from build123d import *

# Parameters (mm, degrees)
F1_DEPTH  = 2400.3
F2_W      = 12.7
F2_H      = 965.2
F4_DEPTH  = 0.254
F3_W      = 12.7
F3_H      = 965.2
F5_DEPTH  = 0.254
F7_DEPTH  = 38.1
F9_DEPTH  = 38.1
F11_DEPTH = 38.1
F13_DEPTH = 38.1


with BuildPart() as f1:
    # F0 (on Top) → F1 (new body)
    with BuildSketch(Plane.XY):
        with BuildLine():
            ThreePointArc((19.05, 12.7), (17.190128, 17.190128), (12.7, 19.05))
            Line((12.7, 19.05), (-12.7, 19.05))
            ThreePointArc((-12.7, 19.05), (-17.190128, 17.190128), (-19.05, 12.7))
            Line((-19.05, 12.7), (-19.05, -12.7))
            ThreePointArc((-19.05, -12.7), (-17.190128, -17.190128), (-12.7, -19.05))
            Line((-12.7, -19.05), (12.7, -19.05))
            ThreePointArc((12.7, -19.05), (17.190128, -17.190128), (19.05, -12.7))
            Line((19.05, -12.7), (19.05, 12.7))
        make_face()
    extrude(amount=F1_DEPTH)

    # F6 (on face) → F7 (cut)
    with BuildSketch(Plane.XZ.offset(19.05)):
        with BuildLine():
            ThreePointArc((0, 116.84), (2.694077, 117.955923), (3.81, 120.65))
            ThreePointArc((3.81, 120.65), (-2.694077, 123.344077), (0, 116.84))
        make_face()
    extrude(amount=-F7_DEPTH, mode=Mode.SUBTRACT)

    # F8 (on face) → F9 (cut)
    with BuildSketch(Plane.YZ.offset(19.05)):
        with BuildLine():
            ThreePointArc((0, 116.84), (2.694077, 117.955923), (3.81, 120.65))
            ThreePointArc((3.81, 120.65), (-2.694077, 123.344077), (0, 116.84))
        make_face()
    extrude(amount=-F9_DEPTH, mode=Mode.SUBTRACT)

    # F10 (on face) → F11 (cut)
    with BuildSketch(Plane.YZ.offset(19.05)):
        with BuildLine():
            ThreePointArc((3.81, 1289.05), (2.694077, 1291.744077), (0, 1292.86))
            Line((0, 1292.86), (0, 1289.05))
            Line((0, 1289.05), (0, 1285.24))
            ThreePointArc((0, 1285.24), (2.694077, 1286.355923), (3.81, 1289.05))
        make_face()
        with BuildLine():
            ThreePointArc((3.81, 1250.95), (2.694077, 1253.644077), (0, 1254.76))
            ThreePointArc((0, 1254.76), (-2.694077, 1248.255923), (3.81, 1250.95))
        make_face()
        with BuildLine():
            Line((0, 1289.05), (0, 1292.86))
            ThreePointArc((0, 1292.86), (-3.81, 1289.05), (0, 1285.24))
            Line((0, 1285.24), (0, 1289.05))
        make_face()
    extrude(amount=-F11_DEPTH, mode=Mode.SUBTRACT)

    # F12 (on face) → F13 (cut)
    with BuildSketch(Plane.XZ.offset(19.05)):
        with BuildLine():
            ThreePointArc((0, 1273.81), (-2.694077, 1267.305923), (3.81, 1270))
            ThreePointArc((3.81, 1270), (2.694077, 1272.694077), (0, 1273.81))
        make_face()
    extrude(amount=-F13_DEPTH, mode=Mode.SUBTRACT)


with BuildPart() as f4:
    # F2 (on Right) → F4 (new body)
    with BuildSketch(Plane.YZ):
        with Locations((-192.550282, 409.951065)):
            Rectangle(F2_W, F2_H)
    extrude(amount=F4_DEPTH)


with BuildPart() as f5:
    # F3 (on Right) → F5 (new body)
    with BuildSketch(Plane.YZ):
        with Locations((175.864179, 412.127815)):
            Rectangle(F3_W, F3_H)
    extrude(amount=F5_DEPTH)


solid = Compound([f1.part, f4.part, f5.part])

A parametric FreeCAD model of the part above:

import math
import FreeCAD as App
import Part
import Sketcher
Q = App.Units.Quantity

doc = App.newDocument("Part")
body = doc.addObject("PartDesign::Body", "Body")

sketch1 = doc.addObject("Sketcher::SketchObject", "Sketch")
body.addObject(sketch1)
sketch1.AttachmentSupport = (doc.XY_Plane, [""])
sketch1.MapMode = "FlatFace"
sketch1.addGeometry(Part.ArcOfCircle(Part.Circle(App.Vector(13, 13, 0), App.Vector(0, 0, 1), 6), math.radians(0), math.radians(90)), False)
sketch1.addGeometry(Part.LineSegment(App.Vector(13, 19, 0), App.Vector(-13, 19, 0)), False)
sketch1.addGeometry(Part.ArcOfCircle(Part.Circle(App.Vector(-13, 13, 0), App.Vector(0, 0, 1), 6), math.radians(90), math.radians(180)), False)
sketch1.addGeometry(Part.LineSegment(App.Vector(-19, 13, 0), App.Vector(-19, -13, 0)), False)
sketch1.addGeometry(Part.ArcOfCircle(Part.Circle(App.Vector(-13, -13, 0), App.Vector(0, 0, 1), 6), math.radians(-180), math.radians(-90)), False)
sketch1.addGeometry(Part.LineSegment(App.Vector(-13, -19, 0), App.Vector(13, -19, 0)), False)
sketch1.addGeometry(Part.ArcOfCircle(Part.Circle(App.Vector(13, -13, 0), App.Vector(0, 0, 1), 6), math.radians(-90), math.radians(0)), False)
sketch1.addGeometry(Part.LineSegment(App.Vector(19, -13, 0), App.Vector(19, 13, 0)), False)
sketch1.addConstraint(Sketcher.Constraint("Tangent", 0, 2, 1, 1))
sketch1.addConstraint(Sketcher.Constraint("Tangent", 1, 2, 2, 1))
sketch1.addConstraint(Sketcher.Constraint("Tangent", 2, 2, 3, 1))
sketch1.addConstraint(Sketcher.Constraint("Tangent", 3, 2, 4, 1))
sketch1.addConstraint(Sketcher.Constraint("Tangent", 4, 2, 5, 1))
sketch1.addConstraint(Sketcher.Constraint("Tangent", 5, 2, 6, 1))
sketch1.addConstraint(Sketcher.Constraint("Tangent", 6, 2, 7, 1))
sketch1.addConstraint(Sketcher.Constraint("Tangent", 7, 2, 0, 1))
sketch1.addConstraint(Sketcher.Constraint("Horizontal", 1))
sketch1.addConstraint(Sketcher.Constraint("Vertical", 3))
sketch1.addConstraint(Sketcher.Constraint("Horizontal", 5))
sketch1.addConstraint(Sketcher.Constraint("Vertical", 7))
sketch1.addConstraint(Sketcher.Constraint("Equal", 0, 2))
sketch1.addConstraint(Sketcher.Constraint("Equal", 2, 4))
sketch1.addConstraint(Sketcher.Constraint("Equal", 4, 6))
sketch1.addConstraint(Sketcher.Constraint("Symmetric", 0, 3, 4, 3, -1, 1))
sketch1.addConstraint(Sketcher.Constraint("Equal", 5, 3))
sketch1.addConstraint(Sketcher.Constraint("DistanceX", 1, 2, 1, 1, Q("1 in")))
sketch1.addConstraint(Sketcher.Constraint("Radius", 0, Q("0.25 in")))
pad1 = doc.addObject("PartDesign::Pad", "Pad")
body.addObject(pad1)
pad1.Profile = sketch1
pad1.Length = Q("94.5 in")

sketch2 = doc.addObject("Sketcher::SketchObject", "Sketch001")
body.addObject(sketch2)
sketch2.AttachmentSupport = (doc.XZ_Plane, [""])
sketch2.MapMode = "FlatFace"
sketch2.AttachmentOffset = App.Placement(App.Vector(0, 0, 0.75 * 25.4), App.Rotation())
sketch2.addGeometry(Part.ArcOfCircle(Part.Circle(App.Vector(0, 120.6, 0), App.Vector(0, 0, 1), 3.8), math.radians(-90), math.radians(0)), False)
sketch2.addGeometry(Part.ArcOfCircle(Part.Circle(App.Vector(0, 120.7, 0), App.Vector(0, 0, 1), 3.8), math.radians(0), math.radians(270)), False)
sketch2.addConstraint(Sketcher.Constraint("Tangent", 0, 1, 1, 2))
sketch2.addConstraint(Sketcher.Constraint("Coincident", 1, 1, 0, 2))
sketch2.addConstraint(Sketcher.Constraint("PointOnObject", 0, 3, -2))
sketch2.addConstraint(Sketcher.Constraint("PointOnObject", 0, 1, -2))
sketch2.addConstraint(Sketcher.Constraint("Horizontal", 0, 3, 1, 1))
sketch2.addConstraint(Sketcher.Constraint("Radius", 0, Q("0.15 in")))
sketch2.addConstraint(Sketcher.Constraint("DistanceY", -1, 1, 0, 1, Q("4.6 in")))
pocket1 = doc.addObject("PartDesign::Pocket", "Pocket")
body.addObject(pocket1)
pocket1.Profile = sketch2
pocket1.Length = Q("1.5 in")

sketch3 = doc.addObject("Sketcher::SketchObject", "Sketch002")
body.addObject(sketch3)
sketch3.AttachmentSupport = (doc.YZ_Plane, [""])
sketch3.MapMode = "FlatFace"
sketch3.AttachmentOffset = App.Placement(App.Vector(0, 0, 0.75 * 25.4), App.Rotation())
sketch3.addGeometry(Part.ArcOfCircle(Part.Circle(App.Vector(0, 120.6, 0), App.Vector(0, 0, 1), 3.8), math.radians(-90), math.radians(0)), False)
sketch3.addGeometry(Part.ArcOfCircle(Part.Circle(App.Vector(0, 120.7, 0), App.Vector(0, 0, 1), 3.8), math.radians(0), math.radians(270)), False)
sketch3.addConstraint(Sketcher.Constraint("Tangent", 0, 1, 1, 2))
sketch3.addConstraint(Sketcher.Constraint("Coincident", 1, 1, 0, 2))
sketch3.addConstraint(Sketcher.Constraint("PointOnObject", 0, 3, -2))
sketch3.addConstraint(Sketcher.Constraint("PointOnObject", 0, 1, -2))
sketch3.addConstraint(Sketcher.Constraint("Horizontal", 0, 3, 1, 1))
sketch3.addConstraint(Sketcher.Constraint("Radius", 0, Q("0.15 in")))
sketch3.addConstraint(Sketcher.Constraint("DistanceY", -1, 1, 0, 1, Q("4.6 in")))
pocket2 = doc.addObject("PartDesign::Pocket", "Pocket001")
body.addObject(pocket2)
pocket2.Profile = sketch3
pocket2.Length = Q("1.5 in")

sketch4 = doc.addObject("Sketcher::SketchObject", "Sketch003")
body.addObject(sketch4)
sketch4.AttachmentSupport = (doc.YZ_Plane, [""])
sketch4.MapMode = "FlatFace"
sketch4.AttachmentOffset = App.Placement(App.Vector(0, 0, 0.75 * 25.4), App.Rotation())
sketch4.addGeometry(Part.ArcOfCircle(Part.Circle(App.Vector(0, 1289.1, 0), App.Vector(0, 0, 1), 3.8), math.radians(0), math.radians(90)), False)
sketch4.addGeometry(Part.ArcOfCircle(Part.Circle(App.Vector(0, 1289, 0), App.Vector(0, 0, 1), 3.8), math.radians(90), math.radians(270)), False)
sketch4.addGeometry(Part.ArcOfCircle(Part.Circle(App.Vector(0, 1289, 0), App.Vector(0, 0, 1), 3.8), math.radians(-90), math.radians(0)), False)
sketch4.addGeometry(Part.ArcOfCircle(Part.Circle(App.Vector(0, 1251, 0), App.Vector(0, 0, 1), 3.8), math.radians(0), math.radians(90)), False)
sketch4.addGeometry(Part.ArcOfCircle(Part.Circle(App.Vector(0, 1250.9, 0), App.Vector(0, 0, 1), 3.8), math.radians(90), math.radians(360)), False)
sketch4.addConstraint(Sketcher.Constraint("Tangent", 0, 2, 1, 1))
sketch4.addConstraint(Sketcher.Constraint("Tangent", 1, 2, 2, 1))
sketch4.addConstraint(Sketcher.Constraint("Tangent", 2, 2, 0, 1))
sketch4.addConstraint(Sketcher.Constraint("Tangent", 3, 1, 4, 2))
sketch4.addConstraint(Sketcher.Constraint("Coincident", 4, 1, 3, 2))
sketch4.addConstraint(Sketcher.Constraint("Equal", 2, 3))
sketch4.addConstraint(Sketcher.Constraint("PointOnObject", 0, 3, -2))
sketch4.addConstraint(Sketcher.Constraint("PointOnObject", 3, 3, -2))
sketch4.addConstraint(Sketcher.Constraint("PointOnObject", 0, 2, -2))
sketch4.addConstraint(Sketcher.Constraint("PointOnObject", 1, 2, -2))
sketch4.addConstraint(Sketcher.Constraint("PointOnObject", 4, 1, -2))
sketch4.addConstraint(Sketcher.Constraint("Horizontal", 1, 3, 2, 2))
sketch4.addConstraint(Sketcher.Constraint("Horizontal", 4, 3, 3, 1))
sketch4.addConstraint(Sketcher.Constraint("Radius", 0, Q("0.15 in")))
sketch4.addConstraint(Sketcher.Constraint("DistanceY", -1, 1, 0, 2, Q("50.9 in")))
sketch4.addConstraint(Sketcher.Constraint("DistanceY", -1, 1, 4, 1, Q("49.4 in")))
pocket3 = doc.addObject("PartDesign::Pocket", "Pocket002")
body.addObject(pocket3)
pocket3.Profile = sketch4
pocket3.Length = Q("1.5 in")

sketch5 = doc.addObject("Sketcher::SketchObject", "Sketch004")
body.addObject(sketch5)
sketch5.AttachmentSupport = (doc.XZ_Plane, [""])
sketch5.MapMode = "FlatFace"
sketch5.AttachmentOffset = App.Placement(App.Vector(0, 0, 0.75 * 25.4), App.Rotation())
sketch5.addGeometry(Part.ArcOfCircle(Part.Circle(App.Vector(0, 1270, 0), App.Vector(0, 0, 1), 3.8), math.radians(90), math.radians(360)), False)
sketch5.addGeometry(Part.ArcOfCircle(Part.Circle(App.Vector(0, 1270, 0), App.Vector(0, 0, 1), 3.8), math.radians(0), math.radians(90)), False)
sketch5.addConstraint(Sketcher.Constraint("Tangent", 0, 1, 1, 2))
sketch5.addConstraint(Sketcher.Constraint("Coincident", 1, 1, 0, 2))
sketch5.addConstraint(Sketcher.Constraint("PointOnObject", 0, 3, -2))
sketch5.addConstraint(Sketcher.Constraint("PointOnObject", 0, 1, -2))
sketch5.addConstraint(Sketcher.Constraint("Horizontal", 0, 3, 1, 1))
sketch5.addConstraint(Sketcher.Constraint("Radius", 0, Q("0.15 in")))
sketch5.addConstraint(Sketcher.Constraint("DistanceY", -1, 1, 0, 3, Q("50 in")))
pocket4 = doc.addObject("PartDesign::Pocket", "Pocket003")
body.addObject(pocket4)
pocket4.Profile = sketch5
pocket4.Length = Q("1.5 in")
body2 = doc.addObject("PartDesign::Body", "Body001")

sketch6 = doc.addObject("Sketcher::SketchObject", "Sketch005")
body2.addObject(sketch6)
sketch6.AttachmentSupport = (doc.getObject("YZ_Plane001"), [""])
sketch6.MapMode = "FlatFace"
sketch6.addGeometry(Part.LineSegment(App.Vector(-199, 893, 0), App.Vector(-199, -73, 0)), False)
sketch6.addGeometry(Part.LineSegment(App.Vector(-199, -73, 0), App.Vector(-186, -73, 0)), False)
sketch6.addGeometry(Part.LineSegment(App.Vector(-186, -73, 0), App.Vector(-186, 893, 0)), False)
sketch6.addGeometry(Part.LineSegment(App.Vector(-186, 893, 0), App.Vector(-199, 893, 0)), False)
sketch6.addConstraint(Sketcher.Constraint("Coincident", 0, 2, 1, 1))
sketch6.addConstraint(Sketcher.Constraint("Coincident", 1, 2, 2, 1))
sketch6.addConstraint(Sketcher.Constraint("Coincident", 2, 2, 3, 1))
sketch6.addConstraint(Sketcher.Constraint("Coincident", 3, 2, 0, 1))
sketch6.addConstraint(Sketcher.Constraint("Vertical", 0))
sketch6.addConstraint(Sketcher.Constraint("Horizontal", 1))
sketch6.addConstraint(Sketcher.Constraint("Vertical", 2))
sketch6.addConstraint(Sketcher.Constraint("Horizontal", 3))
sketch6.addConstraint(Sketcher.Constraint("DistanceY", 0, 2, 0, 1, Q("38 in")))
sketch6.addConstraint(Sketcher.Constraint("DistanceX", 1, 1, 1, 2, Q("0.5 in")))
sketch6.addConstraint(Sketcher.Constraint("DistanceX", 0, 2, -1, 1, 198.900282))
sketch6.addConstraint(Sketcher.Constraint("DistanceY", 0, 2, -1, 1, 72.648935))
pad2 = doc.addObject("PartDesign::Pad", "Pad001")
body2.addObject(pad2)
pad2.Profile = sketch6
pad2.Length = Q("0.01 in")
body3 = doc.addObject("PartDesign::Body", "Body002")

sketch7 = doc.addObject("Sketcher::SketchObject", "Sketch006")
body3.addObject(sketch7)
sketch7.AttachmentSupport = (doc.getObject("YZ_Plane002"), [""])
sketch7.MapMode = "FlatFace"
sketch7.addGeometry(Part.LineSegment(App.Vector(170, 895, 0), App.Vector(170, -70, 0)), False)
sketch7.addGeometry(Part.LineSegment(App.Vector(170, -70, 0), App.Vector(182, -70, 0)), False)
sketch7.addGeometry(Part.LineSegment(App.Vector(182, -70, 0), App.Vector(182, 895, 0)), False)
sketch7.addGeometry(Part.LineSegment(App.Vector(182, 895, 0), App.Vector(170, 895, 0)), False)
sketch7.addConstraint(Sketcher.Constraint("Coincident", 0, 2, 1, 1))
sketch7.addConstraint(Sketcher.Constraint("Coincident", 1, 2, 2, 1))
sketch7.addConstraint(Sketcher.Constraint("Coincident", 2, 2, 3, 1))
sketch7.addConstraint(Sketcher.Constraint("Coincident", 3, 2, 0, 1))
sketch7.addConstraint(Sketcher.Constraint("Vertical", 0))
sketch7.addConstraint(Sketcher.Constraint("Horizontal", 1))
sketch7.addConstraint(Sketcher.Constraint("Vertical", 2))
sketch7.addConstraint(Sketcher.Constraint("Horizontal", 3))
sketch7.addConstraint(Sketcher.Constraint("DistanceY", 0, 2, 0, 1, Q("38 in")))
sketch7.addConstraint(Sketcher.Constraint("DistanceX", 1, 1, 1, 2, Q("0.5 in")))
sketch7.addConstraint(Sketcher.Constraint("DistanceX", -1, 1, 0, 2, 169.514179))
sketch7.addConstraint(Sketcher.Constraint("DistanceY", 0, 2, -1, 1, 70.472185))
pad3 = doc.addObject("PartDesign::Pad", "Pad002")
body3.addObject(pad3)
pad3.Profile = sketch7
pad3.Length = Q("0.01 in")

doc.recompute()
